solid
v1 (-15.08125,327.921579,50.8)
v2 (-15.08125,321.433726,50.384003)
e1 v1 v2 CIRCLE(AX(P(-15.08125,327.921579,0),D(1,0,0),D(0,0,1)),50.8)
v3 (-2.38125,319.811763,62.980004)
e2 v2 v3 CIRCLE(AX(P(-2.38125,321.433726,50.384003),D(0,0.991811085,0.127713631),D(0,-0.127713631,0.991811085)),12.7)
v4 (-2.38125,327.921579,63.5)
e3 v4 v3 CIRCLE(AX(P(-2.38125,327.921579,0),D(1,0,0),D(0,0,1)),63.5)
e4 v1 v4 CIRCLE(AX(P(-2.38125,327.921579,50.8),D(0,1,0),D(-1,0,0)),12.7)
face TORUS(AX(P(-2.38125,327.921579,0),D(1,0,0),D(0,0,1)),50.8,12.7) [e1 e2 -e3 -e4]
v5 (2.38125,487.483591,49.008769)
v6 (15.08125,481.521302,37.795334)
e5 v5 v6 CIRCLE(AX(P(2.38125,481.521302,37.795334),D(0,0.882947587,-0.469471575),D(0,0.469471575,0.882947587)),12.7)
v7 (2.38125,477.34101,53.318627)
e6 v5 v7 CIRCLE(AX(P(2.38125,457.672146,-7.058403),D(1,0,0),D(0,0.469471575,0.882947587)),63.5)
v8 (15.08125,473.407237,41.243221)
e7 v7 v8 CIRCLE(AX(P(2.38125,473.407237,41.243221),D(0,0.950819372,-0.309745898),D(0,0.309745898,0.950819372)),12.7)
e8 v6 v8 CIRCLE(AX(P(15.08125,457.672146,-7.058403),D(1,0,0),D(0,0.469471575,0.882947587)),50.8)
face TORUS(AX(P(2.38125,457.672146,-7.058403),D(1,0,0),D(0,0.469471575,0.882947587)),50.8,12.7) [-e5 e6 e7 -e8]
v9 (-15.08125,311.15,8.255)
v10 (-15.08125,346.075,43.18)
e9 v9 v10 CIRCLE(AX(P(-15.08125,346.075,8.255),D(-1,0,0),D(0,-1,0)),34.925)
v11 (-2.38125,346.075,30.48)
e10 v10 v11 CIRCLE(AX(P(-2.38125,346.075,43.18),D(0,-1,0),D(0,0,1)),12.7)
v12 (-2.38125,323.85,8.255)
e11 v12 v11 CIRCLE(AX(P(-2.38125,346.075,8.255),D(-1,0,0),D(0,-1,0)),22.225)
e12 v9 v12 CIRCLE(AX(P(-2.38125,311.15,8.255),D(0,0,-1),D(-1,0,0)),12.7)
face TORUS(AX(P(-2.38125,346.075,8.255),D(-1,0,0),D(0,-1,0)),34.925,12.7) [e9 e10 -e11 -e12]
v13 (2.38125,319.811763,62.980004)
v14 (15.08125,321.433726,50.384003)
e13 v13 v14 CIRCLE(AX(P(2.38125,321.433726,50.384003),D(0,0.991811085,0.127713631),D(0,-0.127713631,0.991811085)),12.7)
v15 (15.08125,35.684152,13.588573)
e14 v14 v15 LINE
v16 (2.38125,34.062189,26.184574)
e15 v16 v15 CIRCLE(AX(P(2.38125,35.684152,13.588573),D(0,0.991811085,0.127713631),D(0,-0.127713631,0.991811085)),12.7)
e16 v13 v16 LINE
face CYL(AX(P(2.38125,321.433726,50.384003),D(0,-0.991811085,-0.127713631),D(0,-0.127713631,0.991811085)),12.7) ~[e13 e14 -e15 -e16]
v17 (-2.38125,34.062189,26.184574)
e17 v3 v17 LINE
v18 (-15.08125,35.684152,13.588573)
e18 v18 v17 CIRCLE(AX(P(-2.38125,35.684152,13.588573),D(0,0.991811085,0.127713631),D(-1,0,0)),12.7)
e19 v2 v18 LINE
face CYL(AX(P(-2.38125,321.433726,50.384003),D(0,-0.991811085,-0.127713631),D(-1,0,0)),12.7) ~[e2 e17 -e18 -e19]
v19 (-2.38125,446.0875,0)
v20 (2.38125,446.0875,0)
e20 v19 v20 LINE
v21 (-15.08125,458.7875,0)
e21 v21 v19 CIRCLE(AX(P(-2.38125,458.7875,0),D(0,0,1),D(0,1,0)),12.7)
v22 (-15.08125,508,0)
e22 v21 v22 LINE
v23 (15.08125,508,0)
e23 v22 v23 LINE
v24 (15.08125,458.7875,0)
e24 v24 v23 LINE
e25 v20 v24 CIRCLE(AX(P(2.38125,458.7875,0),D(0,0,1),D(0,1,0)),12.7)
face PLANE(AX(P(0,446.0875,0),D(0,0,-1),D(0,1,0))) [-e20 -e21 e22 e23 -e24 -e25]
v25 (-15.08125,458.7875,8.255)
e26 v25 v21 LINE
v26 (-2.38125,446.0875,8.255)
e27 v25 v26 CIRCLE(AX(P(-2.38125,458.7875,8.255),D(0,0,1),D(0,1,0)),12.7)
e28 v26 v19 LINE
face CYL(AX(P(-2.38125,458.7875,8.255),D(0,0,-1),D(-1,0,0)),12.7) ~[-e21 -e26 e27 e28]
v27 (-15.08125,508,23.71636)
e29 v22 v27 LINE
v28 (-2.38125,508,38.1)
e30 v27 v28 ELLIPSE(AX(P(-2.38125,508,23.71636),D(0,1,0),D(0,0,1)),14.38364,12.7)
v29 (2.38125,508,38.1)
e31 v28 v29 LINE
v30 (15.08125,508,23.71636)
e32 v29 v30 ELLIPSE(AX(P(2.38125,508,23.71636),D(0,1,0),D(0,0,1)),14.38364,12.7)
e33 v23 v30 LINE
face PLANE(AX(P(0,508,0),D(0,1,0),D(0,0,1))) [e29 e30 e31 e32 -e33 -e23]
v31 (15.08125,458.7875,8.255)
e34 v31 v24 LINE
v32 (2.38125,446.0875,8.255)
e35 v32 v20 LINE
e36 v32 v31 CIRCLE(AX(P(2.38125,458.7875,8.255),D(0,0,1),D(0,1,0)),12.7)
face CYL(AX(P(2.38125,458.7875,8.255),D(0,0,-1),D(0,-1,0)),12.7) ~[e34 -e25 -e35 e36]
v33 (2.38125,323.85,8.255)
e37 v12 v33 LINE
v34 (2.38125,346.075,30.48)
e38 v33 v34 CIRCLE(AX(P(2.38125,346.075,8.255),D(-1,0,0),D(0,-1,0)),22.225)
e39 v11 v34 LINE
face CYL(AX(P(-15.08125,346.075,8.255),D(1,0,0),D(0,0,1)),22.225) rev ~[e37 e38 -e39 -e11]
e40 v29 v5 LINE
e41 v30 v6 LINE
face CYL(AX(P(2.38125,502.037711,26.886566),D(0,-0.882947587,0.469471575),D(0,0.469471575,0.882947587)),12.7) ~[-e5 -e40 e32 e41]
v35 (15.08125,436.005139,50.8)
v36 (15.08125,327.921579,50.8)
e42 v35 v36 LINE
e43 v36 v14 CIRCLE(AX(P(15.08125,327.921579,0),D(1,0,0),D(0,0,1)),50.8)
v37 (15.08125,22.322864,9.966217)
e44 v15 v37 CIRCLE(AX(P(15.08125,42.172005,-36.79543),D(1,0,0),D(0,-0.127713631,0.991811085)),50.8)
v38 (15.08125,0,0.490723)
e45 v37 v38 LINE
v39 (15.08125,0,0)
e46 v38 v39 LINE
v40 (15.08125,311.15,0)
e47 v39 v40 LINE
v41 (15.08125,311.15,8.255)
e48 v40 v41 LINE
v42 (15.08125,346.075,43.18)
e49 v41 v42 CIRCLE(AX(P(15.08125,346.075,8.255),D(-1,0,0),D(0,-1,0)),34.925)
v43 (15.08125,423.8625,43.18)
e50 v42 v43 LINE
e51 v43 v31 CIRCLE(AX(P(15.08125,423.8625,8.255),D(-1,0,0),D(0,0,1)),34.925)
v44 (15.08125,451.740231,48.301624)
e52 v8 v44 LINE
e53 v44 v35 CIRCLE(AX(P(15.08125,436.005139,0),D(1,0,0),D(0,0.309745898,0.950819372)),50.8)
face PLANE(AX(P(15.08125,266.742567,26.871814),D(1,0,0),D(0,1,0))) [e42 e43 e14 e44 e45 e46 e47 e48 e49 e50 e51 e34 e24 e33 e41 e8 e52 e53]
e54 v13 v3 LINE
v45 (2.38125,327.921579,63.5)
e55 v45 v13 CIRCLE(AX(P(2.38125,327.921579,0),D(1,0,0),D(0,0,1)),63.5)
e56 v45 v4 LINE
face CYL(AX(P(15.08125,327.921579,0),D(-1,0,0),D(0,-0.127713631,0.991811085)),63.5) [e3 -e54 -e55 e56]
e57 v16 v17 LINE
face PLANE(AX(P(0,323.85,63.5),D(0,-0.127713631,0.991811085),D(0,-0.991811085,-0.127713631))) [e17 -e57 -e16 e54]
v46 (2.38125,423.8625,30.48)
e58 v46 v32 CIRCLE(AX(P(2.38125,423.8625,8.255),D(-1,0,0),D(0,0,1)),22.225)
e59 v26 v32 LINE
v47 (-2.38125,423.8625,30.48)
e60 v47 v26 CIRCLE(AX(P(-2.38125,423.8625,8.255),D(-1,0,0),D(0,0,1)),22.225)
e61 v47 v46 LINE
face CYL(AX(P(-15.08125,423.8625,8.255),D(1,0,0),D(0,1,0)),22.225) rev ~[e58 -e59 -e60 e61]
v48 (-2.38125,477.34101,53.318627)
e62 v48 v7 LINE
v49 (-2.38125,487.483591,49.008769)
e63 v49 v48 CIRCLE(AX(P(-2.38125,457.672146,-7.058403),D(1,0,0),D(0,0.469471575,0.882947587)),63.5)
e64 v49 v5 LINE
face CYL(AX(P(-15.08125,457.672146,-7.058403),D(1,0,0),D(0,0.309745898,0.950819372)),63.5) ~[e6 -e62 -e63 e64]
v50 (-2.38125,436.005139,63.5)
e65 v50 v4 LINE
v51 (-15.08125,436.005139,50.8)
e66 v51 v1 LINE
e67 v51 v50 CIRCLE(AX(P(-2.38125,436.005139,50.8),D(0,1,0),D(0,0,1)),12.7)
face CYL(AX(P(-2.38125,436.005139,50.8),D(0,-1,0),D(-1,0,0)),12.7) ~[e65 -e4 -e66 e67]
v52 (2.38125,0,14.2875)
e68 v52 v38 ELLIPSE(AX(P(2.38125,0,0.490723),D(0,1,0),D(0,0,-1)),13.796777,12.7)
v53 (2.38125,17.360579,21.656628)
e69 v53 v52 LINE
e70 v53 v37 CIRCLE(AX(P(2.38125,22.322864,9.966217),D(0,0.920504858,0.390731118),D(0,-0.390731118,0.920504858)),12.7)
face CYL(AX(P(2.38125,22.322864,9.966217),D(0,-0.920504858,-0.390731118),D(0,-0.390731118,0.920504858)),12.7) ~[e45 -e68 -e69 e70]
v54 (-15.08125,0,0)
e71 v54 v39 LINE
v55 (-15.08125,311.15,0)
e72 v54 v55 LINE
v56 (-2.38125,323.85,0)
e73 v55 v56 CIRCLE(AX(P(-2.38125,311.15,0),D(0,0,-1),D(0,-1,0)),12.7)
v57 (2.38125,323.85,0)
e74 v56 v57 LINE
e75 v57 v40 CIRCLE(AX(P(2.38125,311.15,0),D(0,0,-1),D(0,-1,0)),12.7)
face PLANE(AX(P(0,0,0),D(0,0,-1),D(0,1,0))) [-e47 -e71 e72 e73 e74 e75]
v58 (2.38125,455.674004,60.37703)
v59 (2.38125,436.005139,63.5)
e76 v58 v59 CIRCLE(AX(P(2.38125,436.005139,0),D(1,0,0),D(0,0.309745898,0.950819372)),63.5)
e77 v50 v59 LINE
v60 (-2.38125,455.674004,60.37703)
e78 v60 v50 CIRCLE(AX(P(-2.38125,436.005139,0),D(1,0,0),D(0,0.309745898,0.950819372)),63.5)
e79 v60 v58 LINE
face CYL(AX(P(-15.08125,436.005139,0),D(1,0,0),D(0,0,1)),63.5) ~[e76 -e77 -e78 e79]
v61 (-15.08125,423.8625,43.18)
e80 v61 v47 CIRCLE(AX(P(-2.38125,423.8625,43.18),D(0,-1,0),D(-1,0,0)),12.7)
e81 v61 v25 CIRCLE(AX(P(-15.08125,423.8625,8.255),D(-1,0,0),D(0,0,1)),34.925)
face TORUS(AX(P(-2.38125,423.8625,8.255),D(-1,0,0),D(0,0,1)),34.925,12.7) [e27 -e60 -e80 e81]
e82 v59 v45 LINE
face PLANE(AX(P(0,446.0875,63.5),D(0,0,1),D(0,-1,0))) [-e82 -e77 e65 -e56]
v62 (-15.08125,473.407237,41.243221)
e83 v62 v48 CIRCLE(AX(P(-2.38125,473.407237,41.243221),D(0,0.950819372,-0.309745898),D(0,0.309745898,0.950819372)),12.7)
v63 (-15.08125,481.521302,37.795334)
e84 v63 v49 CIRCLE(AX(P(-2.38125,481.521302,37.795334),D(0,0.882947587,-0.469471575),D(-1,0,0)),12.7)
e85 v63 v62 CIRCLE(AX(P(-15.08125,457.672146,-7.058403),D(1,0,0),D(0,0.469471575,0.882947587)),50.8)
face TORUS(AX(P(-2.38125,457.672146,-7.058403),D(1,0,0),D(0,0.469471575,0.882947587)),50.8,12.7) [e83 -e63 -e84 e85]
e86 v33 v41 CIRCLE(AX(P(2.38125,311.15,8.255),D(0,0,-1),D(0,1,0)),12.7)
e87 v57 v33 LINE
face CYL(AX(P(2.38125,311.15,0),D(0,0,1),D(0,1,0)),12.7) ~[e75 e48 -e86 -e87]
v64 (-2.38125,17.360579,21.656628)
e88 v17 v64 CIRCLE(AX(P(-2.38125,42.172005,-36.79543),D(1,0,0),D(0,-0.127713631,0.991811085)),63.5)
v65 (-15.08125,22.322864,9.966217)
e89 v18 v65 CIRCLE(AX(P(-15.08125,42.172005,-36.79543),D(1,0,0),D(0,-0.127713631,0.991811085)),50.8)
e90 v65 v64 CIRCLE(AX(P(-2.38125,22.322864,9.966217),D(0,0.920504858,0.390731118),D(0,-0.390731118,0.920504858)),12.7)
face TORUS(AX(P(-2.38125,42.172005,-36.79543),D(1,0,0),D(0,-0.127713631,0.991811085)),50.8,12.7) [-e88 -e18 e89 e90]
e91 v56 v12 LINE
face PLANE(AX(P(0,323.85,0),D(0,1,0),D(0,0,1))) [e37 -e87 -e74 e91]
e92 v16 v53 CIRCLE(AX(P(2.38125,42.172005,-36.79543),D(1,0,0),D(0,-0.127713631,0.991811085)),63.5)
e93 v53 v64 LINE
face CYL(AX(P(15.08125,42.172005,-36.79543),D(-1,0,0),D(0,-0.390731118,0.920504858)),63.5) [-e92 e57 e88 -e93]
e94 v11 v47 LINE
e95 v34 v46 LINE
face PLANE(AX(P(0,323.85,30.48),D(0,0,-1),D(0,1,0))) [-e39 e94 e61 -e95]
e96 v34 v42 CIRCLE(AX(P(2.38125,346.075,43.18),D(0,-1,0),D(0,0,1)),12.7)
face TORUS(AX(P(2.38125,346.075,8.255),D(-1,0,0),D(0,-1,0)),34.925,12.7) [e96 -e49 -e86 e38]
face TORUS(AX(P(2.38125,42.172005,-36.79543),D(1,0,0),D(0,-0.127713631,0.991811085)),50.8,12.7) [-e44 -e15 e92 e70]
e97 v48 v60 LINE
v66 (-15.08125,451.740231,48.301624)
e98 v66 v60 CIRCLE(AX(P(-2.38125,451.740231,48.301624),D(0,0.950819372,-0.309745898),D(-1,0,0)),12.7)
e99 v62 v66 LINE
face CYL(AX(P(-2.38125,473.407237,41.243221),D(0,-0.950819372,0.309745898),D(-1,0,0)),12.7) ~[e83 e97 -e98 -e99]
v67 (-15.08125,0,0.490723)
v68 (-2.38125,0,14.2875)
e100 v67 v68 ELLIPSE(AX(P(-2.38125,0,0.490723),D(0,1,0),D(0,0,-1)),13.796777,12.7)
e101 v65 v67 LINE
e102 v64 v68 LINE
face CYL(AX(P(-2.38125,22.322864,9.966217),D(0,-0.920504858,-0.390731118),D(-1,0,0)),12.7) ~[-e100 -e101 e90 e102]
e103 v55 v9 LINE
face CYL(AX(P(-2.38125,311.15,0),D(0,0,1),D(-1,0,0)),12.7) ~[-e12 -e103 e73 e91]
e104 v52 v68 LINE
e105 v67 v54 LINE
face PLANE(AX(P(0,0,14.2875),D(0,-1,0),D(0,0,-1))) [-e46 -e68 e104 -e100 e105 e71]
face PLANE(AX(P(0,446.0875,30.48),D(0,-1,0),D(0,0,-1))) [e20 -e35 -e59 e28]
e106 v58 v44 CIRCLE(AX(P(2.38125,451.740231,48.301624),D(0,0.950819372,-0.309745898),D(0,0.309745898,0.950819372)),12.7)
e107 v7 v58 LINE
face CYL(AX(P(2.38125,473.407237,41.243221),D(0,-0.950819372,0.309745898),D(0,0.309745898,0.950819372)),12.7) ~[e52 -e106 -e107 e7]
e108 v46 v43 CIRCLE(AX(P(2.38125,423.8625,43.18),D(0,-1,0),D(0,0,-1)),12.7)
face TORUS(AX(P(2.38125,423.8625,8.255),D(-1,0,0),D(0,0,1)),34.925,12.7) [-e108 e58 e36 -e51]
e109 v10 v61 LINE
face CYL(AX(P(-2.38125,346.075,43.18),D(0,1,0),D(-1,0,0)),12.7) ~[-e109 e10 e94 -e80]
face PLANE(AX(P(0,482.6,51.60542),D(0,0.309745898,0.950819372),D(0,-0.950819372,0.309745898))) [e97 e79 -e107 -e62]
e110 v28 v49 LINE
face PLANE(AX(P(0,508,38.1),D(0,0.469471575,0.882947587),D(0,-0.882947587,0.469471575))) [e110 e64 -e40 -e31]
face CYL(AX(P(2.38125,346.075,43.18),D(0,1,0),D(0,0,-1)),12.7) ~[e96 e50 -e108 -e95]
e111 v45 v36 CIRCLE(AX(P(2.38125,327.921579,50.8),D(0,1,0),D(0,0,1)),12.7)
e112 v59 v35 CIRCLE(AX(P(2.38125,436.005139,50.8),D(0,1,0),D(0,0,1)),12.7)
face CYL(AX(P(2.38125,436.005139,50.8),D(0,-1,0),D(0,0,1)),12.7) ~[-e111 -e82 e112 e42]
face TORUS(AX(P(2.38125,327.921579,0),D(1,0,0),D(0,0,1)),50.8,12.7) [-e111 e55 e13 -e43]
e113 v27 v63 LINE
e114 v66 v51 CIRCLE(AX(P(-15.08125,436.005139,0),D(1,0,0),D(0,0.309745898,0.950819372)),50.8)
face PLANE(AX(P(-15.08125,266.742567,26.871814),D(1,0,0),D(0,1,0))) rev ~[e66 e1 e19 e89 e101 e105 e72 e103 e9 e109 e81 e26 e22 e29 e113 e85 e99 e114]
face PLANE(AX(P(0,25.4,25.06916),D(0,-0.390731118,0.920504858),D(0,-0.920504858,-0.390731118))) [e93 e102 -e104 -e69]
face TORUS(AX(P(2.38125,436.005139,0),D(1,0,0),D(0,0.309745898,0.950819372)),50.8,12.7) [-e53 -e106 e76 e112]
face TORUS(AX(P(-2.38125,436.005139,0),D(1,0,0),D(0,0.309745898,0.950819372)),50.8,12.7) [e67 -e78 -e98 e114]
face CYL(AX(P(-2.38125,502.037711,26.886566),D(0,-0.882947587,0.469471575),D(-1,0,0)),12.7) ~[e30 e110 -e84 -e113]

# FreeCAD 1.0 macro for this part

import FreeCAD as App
import Part
import Sketcher

V = App.Vector
Q = App.Units.Quantity


def edges_at(feature, points):
    """Names of the edges that pass closest to the given points."""
    edges = feature.Shape.Edges
    near = lambda p: min(range(len(edges)), key=lambda i: edges[i].distToShape(Part.Vertex(*p))[0])
    return sorted({f"Edge{near(p) + 1}" for p in points})


def add_polygon(sketch, points):
    """Adds a closed chain of lines whose ends are joined by coincident constraints."""
    first, n = sketch.GeometryCount, len(points)
    for a, b in zip(points, points[1:] + points[:1]):
        sketch.addGeometry(Part.LineSegment(App.Vector(*a, 0), App.Vector(*b, 0)), False)
    for i in range(n):
        sketch.addConstraint(Sketcher.Constraint("Coincident", first + i, 2, first + (i + 1) % n, 1))

doc = App.newDocument("Part")
body = doc.addObject("PartDesign::Body", "Body")

# Sketch on YZ plane
sketch1 = body.newObject("Sketcher::SketchObject", "Sketch")
sketch1.AttachmentSupport = (doc.getObject("YZ_Plane"), [""])
sketch1.MapMode = "FlatFace"
add_polygon(sketch1, [(0, 14.2875), (0, 0), (323.85, 0), (323.85, 30.48), (446.0875, 30.48), (446.0875, 0), (508, 0), (508, 38.1), (482.6, 51.60542), (446.0875, 63.5), (323.85, 63.5), (25.4, 25.06916)])  # lines 0-11
sketch1.addConstraint([
    Sketcher.Constraint("Vertical", 0),
    Sketcher.Constraint("Horizontal", 1),
    Sketcher.Constraint("Vertical", 2),
    Sketcher.Constraint("Horizontal", 3),
    Sketcher.Constraint("Vertical", 4),
    Sketcher.Constraint("Horizontal", 5),
    Sketcher.Constraint("Vertical", 6),
    Sketcher.Constraint("Horizontal", 9),
    Sketcher.Constraint("Coincident", 0, 2, -1, 1),
    Sketcher.Constraint("PointOnObject", 4, 2, -1),
    Sketcher.Constraint("Vertical", 4, 2, 8, 2),
    Sketcher.Constraint("Vertical", 2, 2, 9, 2),
    Sketcher.Constraint("DistanceY", 2, 1, 2, 2, Q("1.2 in")),
    Sketcher.Constraint("DistanceY", 6, 1, 6, 2, Q("1.5 in")),
    Sketcher.Constraint("DistanceX", -1, 1, 5, 2, Q("20 in")),
    Sketcher.Constraint("DistanceX", -1, 1, 7, 2, Q("19 in")),
    Sketcher.Constraint("DistanceX", -1, 1, 10, 2, Q("1 in")),
    Sketcher.Constraint("Angle", 7, Q("151.999999 deg")),
    Sketcher.Constraint("Angle", 11, Q("-157.000001 deg")),
    Sketcher.Constraint("DistanceY", 6, 2, 8, 2, Q("1 in")),
    Sketcher.Constraint("DistanceX", 1, 1, 1, 2, Q("12.75 in")),
    Sketcher.Constraint("DistanceX", 3, 1, 3, 2, Q("4.8125 in")),
    Sketcher.Constraint("DistanceY", 0, 2, 0, 1, Q("0.5625 in")),
])
pad1 = body.newObject("PartDesign::Pad", "Pad")
pad1.Profile = sketch1
pad1.Type = "TwoLengths"
pad1.Length = Q("0.59375 in")
pad1.Length2 = Q("0.59375 in")
doc.recompute()

fillet = body.newObject("PartDesign::Fillet", "Fillet")
fillet.Base = (pad1, edges_at(pad1, [
    (0, 25.4, 25.069),
    (0, 323.85, 63.5),
    (0, 446.087, 63.5),
    (0, 482.6, 51.605),
]))
fillet.Radius = Q("2.5 in")
doc.recompute()

fillet2 = body.newObject("PartDesign::Fillet", "Fillet001")
fillet2.Base = (fillet, edges_at(fillet, [(0, 323.85, 30.48), (0, 446.087, 30.48)]))
fillet2.Radius = Q("0.875 in")
doc.recompute()

fillet3 = body.newObject("PartDesign::Fillet", "Fillet002")
fillet3.Base = (fillet2, edges_at(fillet2, [
    (15.081, 381.963, 63.5),
    (-15.081, 381.963, 63.5),
    (15.081, 384.969, 30.48),
    (-15.081, 384.969, 30.48),
]))
fillet3.Radius = Q("0.5 in")

doc.recompute()
